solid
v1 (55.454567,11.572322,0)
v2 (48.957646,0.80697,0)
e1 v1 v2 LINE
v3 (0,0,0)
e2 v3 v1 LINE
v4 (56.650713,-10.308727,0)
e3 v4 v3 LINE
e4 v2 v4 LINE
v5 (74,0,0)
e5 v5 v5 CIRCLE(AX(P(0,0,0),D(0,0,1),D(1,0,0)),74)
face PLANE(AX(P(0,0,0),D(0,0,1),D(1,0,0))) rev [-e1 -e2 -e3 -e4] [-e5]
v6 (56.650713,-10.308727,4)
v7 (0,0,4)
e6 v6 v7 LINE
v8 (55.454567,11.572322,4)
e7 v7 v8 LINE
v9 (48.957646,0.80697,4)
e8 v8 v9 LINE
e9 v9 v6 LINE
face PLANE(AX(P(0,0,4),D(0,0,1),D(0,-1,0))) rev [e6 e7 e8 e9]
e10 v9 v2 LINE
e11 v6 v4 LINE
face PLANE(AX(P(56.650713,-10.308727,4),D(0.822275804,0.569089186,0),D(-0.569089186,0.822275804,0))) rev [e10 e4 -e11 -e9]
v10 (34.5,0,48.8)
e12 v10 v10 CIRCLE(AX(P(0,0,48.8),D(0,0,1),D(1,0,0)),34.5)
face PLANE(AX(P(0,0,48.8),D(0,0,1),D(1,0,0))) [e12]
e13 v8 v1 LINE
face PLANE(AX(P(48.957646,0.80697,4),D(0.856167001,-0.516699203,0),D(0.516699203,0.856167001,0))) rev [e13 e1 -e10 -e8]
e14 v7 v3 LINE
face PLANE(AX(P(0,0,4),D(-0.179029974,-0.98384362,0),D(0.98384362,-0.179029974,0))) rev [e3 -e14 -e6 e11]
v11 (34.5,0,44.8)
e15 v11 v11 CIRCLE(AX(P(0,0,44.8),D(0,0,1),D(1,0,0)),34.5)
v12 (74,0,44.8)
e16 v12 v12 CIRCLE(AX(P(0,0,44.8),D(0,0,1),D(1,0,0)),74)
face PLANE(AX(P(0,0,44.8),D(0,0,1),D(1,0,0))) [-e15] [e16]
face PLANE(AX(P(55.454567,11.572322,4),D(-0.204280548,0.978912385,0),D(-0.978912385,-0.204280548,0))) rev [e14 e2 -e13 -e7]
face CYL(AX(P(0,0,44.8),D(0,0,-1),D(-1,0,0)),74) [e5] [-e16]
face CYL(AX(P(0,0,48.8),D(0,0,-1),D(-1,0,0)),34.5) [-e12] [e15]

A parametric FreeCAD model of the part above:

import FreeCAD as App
import Part
import Sketcher
Q = App.Units.Quantity

doc = App.newDocument("Part")
body = doc.addObject("PartDesign::Body", "Body")

# Sketch on XY plane
sketch1 = body.newObject("Sketcher::SketchObject", "Sketch")
sketch1.AttachmentSupport = (doc.getObject("XY_Plane"), [""])
sketch1.MapMode = "FlatFace"
sketch1.addGeometry(Part.Circle(App.Vector(0, 0, 0), App.Vector(0, 0, 1), 74), False)
sketch1.addConstraint([
    Sketcher.Constraint("Coincident", 0, 3, -1, 1),
    Sketcher.Constraint("Diameter", 0, Q("148 mm")),
])
pad1 = body.newObject("PartDesign::Pad", "Pad")
pad1.Profile = sketch1
pad1.Length = 44.8

# Sketch on XY plane
sketch2 = body.newObject("Sketcher::SketchObject", "Sketch001")
sketch2.AttachmentSupport = (doc.getObject("XY_Plane"), [""])
sketch2.MapMode = "FlatFace"
sketch2.AttachmentOffset = App.Placement(App.Vector(0, 0, 44.8), App.Rotation())
sketch2.addGeometry(Part.Circle(App.Vector(0, 0, 0), App.Vector(0, 0, 1), 34), False)
sketch2.addConstraint([
    Sketcher.Constraint("Coincident", 0, 3, -1, 1),
    Sketcher.Constraint("Diameter", 0, Q("69 mm")),
])
pad2 = body.newObject("PartDesign::Pad", "Pad001")
pad2.Profile = sketch2
pad2.Length = 4

# Sketch on XY plane
sketch3 = body.newObject("Sketcher::SketchObject", "Sketch002")
sketch3.AttachmentSupport = (doc.getObject("XY_Plane"), [""])
sketch3.MapMode = "FlatFace"
sketch3.addGeometry([
    Part.LineSegment(App.Vector(0, 0, 0), App.Vector(55, 12, 0)),
    Part.LineSegment(App.Vector(55, 12, 0), App.Vector(49, 1, 0)),
    Part.LineSegment(App.Vector(49, 1, 0), App.Vector(57, -10, 0)),
    Part.LineSegment(App.Vector(57, -10, 0), App.Vector(0, 0, 0)),
], False)
sketch3.addConstraint([
    Sketcher.Constraint("Coincident", 0, 2, 1, 1),
    Sketcher.Constraint("Coincident", 1, 2, 2, 1),
    Sketcher.Constraint("Coincident", 2, 2, 3, 1),
    Sketcher.Constraint("Coincident", 3, 2, 0, 1),
    Sketcher.Constraint("Coincident", 3, 2, -1, 1),
    Sketcher.Constraint("Distance", 2, Q("13.51821 mm")),
    Sketcher.Constraint("DistanceY", -1, 1, 0, 2, Q("11.572322 mm")),
    Sketcher.Constraint("DistanceY", -1, 1, 1, 2, Q("0.80697 mm")),
    Sketcher.Constraint("DistanceX", 1, 2, 0, 2, Q("6.49692 mm")),
    Sketcher.Constraint("DistanceY", 2, 2, 0, 2, Q("21.881049 mm")),
    Sketcher.Constraint("Distance", 0, Q("56.649162 mm")),
])
pocket1 = body.newObject("PartDesign::Pocket", "Pocket")
pocket1.Profile = sketch3
pocket1.Length = 4
pocket1.Reversed = True

doc.recompute()
